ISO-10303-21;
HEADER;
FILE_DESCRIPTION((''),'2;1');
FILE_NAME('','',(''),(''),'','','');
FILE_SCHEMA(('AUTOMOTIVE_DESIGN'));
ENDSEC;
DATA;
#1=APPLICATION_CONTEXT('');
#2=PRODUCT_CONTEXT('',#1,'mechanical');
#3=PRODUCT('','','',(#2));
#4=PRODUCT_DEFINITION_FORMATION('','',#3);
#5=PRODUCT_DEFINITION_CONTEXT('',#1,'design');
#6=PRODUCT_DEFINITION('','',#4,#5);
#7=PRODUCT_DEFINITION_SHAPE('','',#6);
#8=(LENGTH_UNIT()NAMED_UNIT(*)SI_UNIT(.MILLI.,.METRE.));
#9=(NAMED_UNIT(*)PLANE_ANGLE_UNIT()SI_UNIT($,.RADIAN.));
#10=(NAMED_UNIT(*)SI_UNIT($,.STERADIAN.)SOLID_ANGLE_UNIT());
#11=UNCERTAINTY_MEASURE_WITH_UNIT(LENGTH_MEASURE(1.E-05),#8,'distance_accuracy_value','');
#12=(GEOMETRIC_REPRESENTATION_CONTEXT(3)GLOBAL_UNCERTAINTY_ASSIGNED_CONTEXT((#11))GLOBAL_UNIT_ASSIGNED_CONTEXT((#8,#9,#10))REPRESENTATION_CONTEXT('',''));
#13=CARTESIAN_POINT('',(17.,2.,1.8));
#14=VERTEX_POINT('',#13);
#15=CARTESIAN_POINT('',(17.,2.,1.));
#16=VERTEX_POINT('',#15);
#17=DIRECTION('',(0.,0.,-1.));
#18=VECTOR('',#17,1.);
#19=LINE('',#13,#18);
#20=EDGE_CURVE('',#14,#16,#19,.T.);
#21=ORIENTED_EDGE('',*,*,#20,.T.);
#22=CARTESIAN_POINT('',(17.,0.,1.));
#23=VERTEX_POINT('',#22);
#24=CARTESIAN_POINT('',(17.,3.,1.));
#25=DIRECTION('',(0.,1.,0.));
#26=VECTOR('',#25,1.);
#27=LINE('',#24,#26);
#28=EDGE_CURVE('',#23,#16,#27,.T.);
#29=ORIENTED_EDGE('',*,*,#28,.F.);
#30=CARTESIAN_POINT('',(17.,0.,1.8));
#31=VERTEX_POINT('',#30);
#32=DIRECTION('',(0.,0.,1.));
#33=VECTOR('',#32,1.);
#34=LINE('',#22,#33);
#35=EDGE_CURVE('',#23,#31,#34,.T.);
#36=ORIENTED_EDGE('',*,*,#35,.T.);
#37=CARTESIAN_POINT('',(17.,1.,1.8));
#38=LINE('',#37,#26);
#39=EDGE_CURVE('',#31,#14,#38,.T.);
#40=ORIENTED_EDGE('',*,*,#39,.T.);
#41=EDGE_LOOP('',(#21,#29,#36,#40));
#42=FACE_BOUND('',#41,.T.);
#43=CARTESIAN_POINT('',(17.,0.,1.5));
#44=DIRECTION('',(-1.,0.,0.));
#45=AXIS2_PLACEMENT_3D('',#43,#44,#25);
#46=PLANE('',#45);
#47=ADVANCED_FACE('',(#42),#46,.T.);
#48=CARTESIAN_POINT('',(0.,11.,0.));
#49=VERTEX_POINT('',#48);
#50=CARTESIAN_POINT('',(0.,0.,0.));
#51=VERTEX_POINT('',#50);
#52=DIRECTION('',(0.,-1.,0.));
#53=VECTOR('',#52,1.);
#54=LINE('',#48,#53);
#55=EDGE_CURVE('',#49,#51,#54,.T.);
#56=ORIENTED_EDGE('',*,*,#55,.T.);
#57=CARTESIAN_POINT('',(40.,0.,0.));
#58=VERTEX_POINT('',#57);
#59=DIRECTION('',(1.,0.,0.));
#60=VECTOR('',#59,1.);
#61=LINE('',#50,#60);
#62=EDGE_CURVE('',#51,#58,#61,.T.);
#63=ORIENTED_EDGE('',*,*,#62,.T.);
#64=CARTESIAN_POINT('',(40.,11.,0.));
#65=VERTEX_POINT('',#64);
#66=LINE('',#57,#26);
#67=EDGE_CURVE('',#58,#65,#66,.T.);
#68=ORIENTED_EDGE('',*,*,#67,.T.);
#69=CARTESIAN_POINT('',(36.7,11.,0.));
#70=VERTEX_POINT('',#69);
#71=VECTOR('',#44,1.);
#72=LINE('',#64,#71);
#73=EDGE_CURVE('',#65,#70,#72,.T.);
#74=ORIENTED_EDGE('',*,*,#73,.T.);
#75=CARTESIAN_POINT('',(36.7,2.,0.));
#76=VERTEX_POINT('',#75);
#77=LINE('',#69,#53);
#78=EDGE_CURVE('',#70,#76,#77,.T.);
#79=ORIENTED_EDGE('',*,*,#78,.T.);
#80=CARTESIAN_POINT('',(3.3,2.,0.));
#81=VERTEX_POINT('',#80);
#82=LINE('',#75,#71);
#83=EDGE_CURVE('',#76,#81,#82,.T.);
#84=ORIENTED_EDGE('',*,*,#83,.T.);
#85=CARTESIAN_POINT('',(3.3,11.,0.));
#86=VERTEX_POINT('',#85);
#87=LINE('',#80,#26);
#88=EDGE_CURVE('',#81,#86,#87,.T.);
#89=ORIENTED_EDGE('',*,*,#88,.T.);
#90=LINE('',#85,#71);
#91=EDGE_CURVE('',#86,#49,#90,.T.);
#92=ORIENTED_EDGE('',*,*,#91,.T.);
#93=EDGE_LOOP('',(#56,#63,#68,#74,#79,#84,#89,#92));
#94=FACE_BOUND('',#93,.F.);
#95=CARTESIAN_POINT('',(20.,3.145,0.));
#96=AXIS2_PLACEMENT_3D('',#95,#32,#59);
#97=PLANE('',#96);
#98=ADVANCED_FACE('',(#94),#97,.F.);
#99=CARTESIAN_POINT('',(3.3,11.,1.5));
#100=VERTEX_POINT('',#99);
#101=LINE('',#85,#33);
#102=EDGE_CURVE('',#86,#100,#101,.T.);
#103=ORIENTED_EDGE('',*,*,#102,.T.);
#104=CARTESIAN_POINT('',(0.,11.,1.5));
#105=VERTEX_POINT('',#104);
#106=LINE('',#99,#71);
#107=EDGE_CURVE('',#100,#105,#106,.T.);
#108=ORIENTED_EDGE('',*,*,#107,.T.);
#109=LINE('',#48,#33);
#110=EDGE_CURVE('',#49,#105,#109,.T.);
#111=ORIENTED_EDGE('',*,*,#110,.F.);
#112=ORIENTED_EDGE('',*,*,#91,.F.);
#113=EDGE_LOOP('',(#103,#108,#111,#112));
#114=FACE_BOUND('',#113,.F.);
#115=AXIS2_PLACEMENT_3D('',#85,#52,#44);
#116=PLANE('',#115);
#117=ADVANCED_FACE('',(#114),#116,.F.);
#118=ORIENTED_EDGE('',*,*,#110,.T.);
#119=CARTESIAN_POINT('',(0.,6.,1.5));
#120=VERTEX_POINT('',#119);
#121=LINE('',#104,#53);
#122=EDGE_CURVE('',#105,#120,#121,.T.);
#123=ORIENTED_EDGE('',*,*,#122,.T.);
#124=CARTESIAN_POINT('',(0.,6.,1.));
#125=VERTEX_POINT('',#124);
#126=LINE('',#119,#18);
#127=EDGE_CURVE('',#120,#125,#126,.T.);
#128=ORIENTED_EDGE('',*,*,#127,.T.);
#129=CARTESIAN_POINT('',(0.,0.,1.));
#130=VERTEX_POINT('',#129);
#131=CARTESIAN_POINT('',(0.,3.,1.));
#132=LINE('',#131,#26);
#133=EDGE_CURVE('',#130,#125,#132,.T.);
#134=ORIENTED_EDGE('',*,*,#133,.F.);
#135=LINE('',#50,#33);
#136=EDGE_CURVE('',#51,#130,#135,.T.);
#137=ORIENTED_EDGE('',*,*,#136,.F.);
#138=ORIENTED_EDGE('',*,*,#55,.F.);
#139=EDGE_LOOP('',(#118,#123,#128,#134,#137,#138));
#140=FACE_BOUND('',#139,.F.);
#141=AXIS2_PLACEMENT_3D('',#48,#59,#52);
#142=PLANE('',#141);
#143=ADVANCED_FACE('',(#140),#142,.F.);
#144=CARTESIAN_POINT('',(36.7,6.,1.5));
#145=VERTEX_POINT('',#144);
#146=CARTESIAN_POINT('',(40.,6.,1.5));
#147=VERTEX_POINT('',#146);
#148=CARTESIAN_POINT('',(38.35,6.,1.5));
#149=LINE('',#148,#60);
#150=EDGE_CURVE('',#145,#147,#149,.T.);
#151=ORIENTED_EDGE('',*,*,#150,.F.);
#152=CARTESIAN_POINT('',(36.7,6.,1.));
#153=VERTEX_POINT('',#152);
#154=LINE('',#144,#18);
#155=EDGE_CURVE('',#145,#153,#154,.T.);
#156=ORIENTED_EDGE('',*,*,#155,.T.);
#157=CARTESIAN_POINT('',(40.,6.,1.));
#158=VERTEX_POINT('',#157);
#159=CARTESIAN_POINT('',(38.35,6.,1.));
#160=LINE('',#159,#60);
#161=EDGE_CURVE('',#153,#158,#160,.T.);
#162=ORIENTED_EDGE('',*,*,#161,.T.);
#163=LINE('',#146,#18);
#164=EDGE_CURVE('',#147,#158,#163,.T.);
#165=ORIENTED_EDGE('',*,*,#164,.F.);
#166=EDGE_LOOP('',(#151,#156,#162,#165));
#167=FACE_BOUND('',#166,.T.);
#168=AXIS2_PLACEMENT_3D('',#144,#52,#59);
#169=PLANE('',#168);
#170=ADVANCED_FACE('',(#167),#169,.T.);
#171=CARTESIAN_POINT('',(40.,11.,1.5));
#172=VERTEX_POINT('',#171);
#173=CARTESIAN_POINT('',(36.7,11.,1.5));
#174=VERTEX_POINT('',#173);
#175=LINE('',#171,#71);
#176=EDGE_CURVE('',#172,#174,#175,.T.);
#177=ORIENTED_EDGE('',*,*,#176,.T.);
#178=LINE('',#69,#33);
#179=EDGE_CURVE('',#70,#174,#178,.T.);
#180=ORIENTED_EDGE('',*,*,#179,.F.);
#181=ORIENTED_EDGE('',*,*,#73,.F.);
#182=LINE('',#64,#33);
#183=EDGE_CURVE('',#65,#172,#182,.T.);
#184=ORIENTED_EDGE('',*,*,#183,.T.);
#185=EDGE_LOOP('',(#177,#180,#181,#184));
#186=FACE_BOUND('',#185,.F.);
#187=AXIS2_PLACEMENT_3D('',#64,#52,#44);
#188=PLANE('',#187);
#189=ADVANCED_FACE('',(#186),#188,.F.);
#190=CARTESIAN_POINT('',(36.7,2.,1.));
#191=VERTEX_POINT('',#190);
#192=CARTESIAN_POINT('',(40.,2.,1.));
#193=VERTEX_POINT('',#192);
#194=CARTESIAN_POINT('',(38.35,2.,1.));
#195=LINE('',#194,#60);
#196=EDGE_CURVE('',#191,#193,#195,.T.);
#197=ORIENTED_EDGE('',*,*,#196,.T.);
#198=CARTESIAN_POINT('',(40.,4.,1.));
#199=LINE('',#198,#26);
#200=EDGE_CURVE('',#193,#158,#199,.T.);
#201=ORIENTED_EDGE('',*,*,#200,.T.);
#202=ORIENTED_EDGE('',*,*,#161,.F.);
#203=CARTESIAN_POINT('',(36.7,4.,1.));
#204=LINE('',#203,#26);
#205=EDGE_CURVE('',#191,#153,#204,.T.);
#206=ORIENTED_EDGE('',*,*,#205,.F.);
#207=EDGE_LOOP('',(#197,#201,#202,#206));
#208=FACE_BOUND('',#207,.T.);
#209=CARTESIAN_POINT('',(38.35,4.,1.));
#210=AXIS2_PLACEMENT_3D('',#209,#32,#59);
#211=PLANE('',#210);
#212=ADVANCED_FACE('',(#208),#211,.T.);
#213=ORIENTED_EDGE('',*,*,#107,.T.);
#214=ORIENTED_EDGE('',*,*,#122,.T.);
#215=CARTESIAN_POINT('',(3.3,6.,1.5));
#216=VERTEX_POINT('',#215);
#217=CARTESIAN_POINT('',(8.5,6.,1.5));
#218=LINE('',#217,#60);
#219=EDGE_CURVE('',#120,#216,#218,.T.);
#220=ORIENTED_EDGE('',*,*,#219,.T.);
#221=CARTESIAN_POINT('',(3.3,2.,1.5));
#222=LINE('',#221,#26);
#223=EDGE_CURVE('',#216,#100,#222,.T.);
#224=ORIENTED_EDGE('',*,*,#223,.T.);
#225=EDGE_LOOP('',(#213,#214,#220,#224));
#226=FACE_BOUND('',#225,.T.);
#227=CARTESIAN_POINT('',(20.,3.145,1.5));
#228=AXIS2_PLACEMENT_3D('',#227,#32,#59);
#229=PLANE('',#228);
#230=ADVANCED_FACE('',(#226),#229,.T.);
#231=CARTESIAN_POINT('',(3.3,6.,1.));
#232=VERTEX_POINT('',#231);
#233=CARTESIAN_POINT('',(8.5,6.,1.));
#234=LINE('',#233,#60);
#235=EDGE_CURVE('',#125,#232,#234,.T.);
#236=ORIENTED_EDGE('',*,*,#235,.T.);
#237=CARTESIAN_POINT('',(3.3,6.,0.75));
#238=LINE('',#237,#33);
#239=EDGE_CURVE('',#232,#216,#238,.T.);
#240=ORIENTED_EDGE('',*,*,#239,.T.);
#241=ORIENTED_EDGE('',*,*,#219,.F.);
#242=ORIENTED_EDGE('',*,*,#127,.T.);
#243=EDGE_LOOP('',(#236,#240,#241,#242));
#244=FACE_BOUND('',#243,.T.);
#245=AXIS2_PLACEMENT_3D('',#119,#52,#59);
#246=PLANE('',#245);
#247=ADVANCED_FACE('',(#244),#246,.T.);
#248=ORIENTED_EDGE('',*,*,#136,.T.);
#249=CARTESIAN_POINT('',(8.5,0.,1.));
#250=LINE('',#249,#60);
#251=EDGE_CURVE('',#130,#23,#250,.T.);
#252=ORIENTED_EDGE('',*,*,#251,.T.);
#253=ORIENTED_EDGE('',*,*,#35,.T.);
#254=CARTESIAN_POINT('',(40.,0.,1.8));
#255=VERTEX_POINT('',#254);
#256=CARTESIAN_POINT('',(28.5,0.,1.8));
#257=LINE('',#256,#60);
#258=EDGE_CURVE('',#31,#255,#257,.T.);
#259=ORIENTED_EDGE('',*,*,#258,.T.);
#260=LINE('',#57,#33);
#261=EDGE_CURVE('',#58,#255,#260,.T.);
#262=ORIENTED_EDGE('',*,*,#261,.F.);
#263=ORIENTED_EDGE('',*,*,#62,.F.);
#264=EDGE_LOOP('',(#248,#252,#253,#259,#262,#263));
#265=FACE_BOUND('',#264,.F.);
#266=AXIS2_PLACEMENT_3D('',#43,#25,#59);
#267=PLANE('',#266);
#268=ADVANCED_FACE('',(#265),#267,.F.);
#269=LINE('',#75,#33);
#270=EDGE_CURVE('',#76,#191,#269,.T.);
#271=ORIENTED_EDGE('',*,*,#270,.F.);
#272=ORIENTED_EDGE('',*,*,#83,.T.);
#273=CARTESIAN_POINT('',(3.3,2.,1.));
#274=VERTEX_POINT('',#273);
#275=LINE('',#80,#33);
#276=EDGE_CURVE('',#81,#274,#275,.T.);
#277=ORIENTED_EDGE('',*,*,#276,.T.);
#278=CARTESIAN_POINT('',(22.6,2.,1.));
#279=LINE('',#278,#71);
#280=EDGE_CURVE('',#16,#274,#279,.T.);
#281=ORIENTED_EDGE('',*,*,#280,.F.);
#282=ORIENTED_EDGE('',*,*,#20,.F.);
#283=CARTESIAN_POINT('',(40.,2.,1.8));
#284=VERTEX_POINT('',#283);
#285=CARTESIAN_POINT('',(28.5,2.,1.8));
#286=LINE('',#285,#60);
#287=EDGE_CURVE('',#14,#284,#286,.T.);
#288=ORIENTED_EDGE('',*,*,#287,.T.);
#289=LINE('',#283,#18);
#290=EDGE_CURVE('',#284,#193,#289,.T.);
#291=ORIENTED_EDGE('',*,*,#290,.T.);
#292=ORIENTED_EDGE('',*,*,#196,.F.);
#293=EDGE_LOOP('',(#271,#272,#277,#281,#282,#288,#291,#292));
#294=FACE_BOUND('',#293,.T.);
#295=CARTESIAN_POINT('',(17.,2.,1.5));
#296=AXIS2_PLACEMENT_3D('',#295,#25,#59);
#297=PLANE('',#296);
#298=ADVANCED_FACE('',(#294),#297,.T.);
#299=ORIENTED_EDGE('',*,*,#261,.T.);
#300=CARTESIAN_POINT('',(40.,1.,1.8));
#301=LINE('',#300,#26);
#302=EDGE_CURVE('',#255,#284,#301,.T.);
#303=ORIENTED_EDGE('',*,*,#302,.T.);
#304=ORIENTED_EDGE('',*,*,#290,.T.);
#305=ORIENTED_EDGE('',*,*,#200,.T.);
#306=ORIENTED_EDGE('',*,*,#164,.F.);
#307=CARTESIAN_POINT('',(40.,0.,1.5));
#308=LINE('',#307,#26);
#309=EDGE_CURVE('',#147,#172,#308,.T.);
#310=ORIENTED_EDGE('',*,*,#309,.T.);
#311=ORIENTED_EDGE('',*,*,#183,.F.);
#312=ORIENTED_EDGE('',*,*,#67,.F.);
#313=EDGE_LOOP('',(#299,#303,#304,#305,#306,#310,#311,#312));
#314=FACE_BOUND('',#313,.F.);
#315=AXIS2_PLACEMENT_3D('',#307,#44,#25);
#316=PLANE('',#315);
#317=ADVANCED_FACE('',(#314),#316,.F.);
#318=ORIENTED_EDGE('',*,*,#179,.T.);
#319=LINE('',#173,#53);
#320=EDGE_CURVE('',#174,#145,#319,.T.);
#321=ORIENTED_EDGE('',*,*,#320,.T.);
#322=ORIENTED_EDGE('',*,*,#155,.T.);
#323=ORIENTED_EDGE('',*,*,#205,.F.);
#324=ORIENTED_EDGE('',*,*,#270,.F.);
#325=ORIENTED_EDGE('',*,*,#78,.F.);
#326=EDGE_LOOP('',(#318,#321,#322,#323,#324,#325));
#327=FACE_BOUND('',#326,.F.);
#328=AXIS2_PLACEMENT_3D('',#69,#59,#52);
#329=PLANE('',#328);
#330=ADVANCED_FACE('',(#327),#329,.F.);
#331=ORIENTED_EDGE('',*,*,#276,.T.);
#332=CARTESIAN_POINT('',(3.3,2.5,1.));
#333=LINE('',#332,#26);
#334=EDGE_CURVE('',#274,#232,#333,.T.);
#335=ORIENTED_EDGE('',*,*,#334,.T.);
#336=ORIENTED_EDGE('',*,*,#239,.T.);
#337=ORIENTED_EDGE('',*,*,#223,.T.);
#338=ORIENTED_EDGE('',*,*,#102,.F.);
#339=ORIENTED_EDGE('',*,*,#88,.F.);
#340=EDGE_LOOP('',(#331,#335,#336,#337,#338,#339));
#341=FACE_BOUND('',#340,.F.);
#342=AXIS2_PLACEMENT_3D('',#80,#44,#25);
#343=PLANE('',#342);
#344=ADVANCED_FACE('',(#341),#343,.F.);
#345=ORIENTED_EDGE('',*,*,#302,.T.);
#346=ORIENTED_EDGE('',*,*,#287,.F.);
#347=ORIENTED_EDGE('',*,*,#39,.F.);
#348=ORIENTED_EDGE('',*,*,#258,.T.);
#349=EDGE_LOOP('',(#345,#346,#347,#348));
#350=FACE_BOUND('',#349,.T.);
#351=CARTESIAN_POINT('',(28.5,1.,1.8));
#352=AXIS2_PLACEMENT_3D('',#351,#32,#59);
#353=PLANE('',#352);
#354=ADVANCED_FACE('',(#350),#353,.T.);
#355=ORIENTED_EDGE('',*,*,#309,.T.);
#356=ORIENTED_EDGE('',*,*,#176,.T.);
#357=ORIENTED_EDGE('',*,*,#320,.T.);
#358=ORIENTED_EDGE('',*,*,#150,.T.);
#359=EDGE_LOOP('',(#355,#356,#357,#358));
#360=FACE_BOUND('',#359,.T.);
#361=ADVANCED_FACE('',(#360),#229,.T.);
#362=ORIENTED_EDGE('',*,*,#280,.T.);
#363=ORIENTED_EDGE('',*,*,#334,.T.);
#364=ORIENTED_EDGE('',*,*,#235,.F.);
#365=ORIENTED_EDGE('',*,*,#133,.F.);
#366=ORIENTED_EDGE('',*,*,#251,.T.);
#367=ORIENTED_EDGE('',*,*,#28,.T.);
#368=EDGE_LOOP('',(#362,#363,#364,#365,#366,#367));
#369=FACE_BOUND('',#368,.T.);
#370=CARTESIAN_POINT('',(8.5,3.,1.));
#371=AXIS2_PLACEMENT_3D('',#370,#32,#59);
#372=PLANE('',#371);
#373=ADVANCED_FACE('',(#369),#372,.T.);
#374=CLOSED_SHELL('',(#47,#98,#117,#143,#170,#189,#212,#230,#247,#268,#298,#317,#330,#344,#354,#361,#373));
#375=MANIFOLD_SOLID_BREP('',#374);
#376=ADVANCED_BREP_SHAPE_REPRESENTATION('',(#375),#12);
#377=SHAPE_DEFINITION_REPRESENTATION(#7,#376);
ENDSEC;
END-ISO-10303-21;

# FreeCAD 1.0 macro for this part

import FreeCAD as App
import Part
import Sketcher
Q = App.Units.Quantity


def add_polygon(sketch, points):
    """Adds a closed chain of lines whose ends are joined by coincident constraints."""
    first, n = sketch.GeometryCount, len(points)
    for a, b in zip(points, points[1:] + points[:1]):
        sketch.addGeometry(Part.LineSegment(App.Vector(*a, 0), App.Vector(*b, 0)), False)
    for i in range(n):
        sketch.addConstraint(Sketcher.Constraint("Coincident", first + i, 2, first + (i + 1) % n, 1))

doc = App.newDocument("Part")
body = doc.addObject("PartDesign::Body", "Body")

sketch1 = doc.addObject("Sketcher::SketchObject", "Sketch")
body.addObject(sketch1)
sketch1.AttachmentSupport = (doc.XY_Plane, [""])
sketch1.MapMode = "FlatFace"
add_polygon(sketch1, [(0, 11), (0, 0), (40, 0), (40, 11), (36.7, 11), (36.7, 2), (3.3, 2), (3.3, 11)])
sketch1.addConstraint([
    Sketcher.Constraint("Vertical", 0),
    Sketcher.Constraint("Horizontal", 1),
    Sketcher.Constraint("Vertical", 2),
    Sketcher.Constraint("Horizontal", 3),
    Sketcher.Constraint("Vertical", 4),
    Sketcher.Constraint("Horizontal", 5),
    Sketcher.Constraint("Vertical", 6),
    Sketcher.Constraint("Horizontal", 7),
    Sketcher.Constraint("Coincident", 0, 2, -1, 1),
    Sketcher.Constraint("Horizontal", 3, 2, 6, 2),
    Sketcher.Constraint("Equal", 3, 7),
    Sketcher.Constraint("DistanceX", 1, 1, 1, 2, Q("40 mm")),
    Sketcher.Constraint("DistanceY", 0, 2, 0, 1, Q("11 mm")),
    Sketcher.Constraint("DistanceY", 4, 2, 4, 1, Q("9 mm")),
    Sketcher.Constraint("DistanceX", 3, 2, 3, 1, Q("3.3 mm")),
])
pad1 = doc.addObject("PartDesign::Pad", "Pad")
body.addObject(pad1)
pad1.Profile = sketch1
pad1.Length = 1.5

sketch2 = doc.addObject("Sketcher::SketchObject", "Sketch001")
body.addObject(sketch2)
sketch2.AttachmentSupport = (doc.XY_Plane, [""])
sketch2.MapMode = "FlatFace"
sketch2.AttachmentOffset = App.Placement(App.Vector(0, 0, 1.5), App.Rotation())
add_polygon(sketch2, [(36.7, 6), (36.7, 2), (40, 2), (40, 6)])
add_polygon(sketch2, [(0, 6), (0, 0), (17, 0), (17, 6)])
sketch2.addConstraint([
    Sketcher.Constraint("Vertical", 0),
    Sketcher.Constraint("Horizontal", 1),
    Sketcher.Constraint("Vertical", 2),
    Sketcher.Constraint("Horizontal", 3),
    Sketcher.Constraint("Vertical", 4),
    Sketcher.Constraint("Horizontal", 5),
    Sketcher.Constraint("Vertical", 6),
    Sketcher.Constraint("Horizontal", 7),
    Sketcher.Constraint("Coincident", 4, 2, -1, 1),
    Sketcher.Constraint("Horizontal", 3, 2, 6, 2),
    Sketcher.Constraint("DistanceX", 5, 1, 5, 2, Q("17 mm")),
    Sketcher.Constraint("DistanceY", 0, 2, 0, 1, Q("4 mm")),
    Sketcher.Constraint("DistanceY", 4, 2, 4, 1, Q("6 mm")),
    Sketcher.Constraint("DistanceX", 1, 1, 1, 2, Q("3.3 mm")),
    Sketcher.Constraint("DistanceX", -1, 1, 1, 2, Q("40 mm")),
])
pocket1 = doc.addObject("PartDesign::Pocket", "Pocket")
body.addObject(pocket1)
pocket1.Profile = sketch2
pocket1.Length = 0.5

sketch3 = doc.addObject("Sketcher::SketchObject", "Sketch002")
body.addObject(sketch3)
sketch3.AttachmentSupport = (doc.XY_Plane, [""])
sketch3.MapMode = "FlatFace"
sketch3.AttachmentOffset = App.Placement(App.Vector(0, 0, 1.5), App.Rotation())
add_polygon(sketch3, [(17, 2), (17, 0), (40, 0), (40, 2)])
sketch3.addConstraint([
    Sketcher.Constraint("Vertical", 0),
    Sketcher.Constraint("Horizontal", 1),
    Sketcher.Constraint("Vertical", 2),
    Sketcher.Constraint("Horizontal", 3),
    Sketcher.Constraint("PointOnObject", 0, 2, -1),
    Sketcher.Constraint("DistanceX", 1, 1, 1, 2, Q("23 mm")),
    Sketcher.Constraint("DistanceY", 0, 2, 0, 1, Q("2 mm")),
    Sketcher.Constraint("DistanceX", -1, 1, 0, 2, Q("17 mm")),
])
pad2 = doc.addObject("PartDesign::Pad", "Pad001")
body.addObject(pad2)
pad2.Profile = sketch3
pad2.Length = 0.3

doc.recompute()
